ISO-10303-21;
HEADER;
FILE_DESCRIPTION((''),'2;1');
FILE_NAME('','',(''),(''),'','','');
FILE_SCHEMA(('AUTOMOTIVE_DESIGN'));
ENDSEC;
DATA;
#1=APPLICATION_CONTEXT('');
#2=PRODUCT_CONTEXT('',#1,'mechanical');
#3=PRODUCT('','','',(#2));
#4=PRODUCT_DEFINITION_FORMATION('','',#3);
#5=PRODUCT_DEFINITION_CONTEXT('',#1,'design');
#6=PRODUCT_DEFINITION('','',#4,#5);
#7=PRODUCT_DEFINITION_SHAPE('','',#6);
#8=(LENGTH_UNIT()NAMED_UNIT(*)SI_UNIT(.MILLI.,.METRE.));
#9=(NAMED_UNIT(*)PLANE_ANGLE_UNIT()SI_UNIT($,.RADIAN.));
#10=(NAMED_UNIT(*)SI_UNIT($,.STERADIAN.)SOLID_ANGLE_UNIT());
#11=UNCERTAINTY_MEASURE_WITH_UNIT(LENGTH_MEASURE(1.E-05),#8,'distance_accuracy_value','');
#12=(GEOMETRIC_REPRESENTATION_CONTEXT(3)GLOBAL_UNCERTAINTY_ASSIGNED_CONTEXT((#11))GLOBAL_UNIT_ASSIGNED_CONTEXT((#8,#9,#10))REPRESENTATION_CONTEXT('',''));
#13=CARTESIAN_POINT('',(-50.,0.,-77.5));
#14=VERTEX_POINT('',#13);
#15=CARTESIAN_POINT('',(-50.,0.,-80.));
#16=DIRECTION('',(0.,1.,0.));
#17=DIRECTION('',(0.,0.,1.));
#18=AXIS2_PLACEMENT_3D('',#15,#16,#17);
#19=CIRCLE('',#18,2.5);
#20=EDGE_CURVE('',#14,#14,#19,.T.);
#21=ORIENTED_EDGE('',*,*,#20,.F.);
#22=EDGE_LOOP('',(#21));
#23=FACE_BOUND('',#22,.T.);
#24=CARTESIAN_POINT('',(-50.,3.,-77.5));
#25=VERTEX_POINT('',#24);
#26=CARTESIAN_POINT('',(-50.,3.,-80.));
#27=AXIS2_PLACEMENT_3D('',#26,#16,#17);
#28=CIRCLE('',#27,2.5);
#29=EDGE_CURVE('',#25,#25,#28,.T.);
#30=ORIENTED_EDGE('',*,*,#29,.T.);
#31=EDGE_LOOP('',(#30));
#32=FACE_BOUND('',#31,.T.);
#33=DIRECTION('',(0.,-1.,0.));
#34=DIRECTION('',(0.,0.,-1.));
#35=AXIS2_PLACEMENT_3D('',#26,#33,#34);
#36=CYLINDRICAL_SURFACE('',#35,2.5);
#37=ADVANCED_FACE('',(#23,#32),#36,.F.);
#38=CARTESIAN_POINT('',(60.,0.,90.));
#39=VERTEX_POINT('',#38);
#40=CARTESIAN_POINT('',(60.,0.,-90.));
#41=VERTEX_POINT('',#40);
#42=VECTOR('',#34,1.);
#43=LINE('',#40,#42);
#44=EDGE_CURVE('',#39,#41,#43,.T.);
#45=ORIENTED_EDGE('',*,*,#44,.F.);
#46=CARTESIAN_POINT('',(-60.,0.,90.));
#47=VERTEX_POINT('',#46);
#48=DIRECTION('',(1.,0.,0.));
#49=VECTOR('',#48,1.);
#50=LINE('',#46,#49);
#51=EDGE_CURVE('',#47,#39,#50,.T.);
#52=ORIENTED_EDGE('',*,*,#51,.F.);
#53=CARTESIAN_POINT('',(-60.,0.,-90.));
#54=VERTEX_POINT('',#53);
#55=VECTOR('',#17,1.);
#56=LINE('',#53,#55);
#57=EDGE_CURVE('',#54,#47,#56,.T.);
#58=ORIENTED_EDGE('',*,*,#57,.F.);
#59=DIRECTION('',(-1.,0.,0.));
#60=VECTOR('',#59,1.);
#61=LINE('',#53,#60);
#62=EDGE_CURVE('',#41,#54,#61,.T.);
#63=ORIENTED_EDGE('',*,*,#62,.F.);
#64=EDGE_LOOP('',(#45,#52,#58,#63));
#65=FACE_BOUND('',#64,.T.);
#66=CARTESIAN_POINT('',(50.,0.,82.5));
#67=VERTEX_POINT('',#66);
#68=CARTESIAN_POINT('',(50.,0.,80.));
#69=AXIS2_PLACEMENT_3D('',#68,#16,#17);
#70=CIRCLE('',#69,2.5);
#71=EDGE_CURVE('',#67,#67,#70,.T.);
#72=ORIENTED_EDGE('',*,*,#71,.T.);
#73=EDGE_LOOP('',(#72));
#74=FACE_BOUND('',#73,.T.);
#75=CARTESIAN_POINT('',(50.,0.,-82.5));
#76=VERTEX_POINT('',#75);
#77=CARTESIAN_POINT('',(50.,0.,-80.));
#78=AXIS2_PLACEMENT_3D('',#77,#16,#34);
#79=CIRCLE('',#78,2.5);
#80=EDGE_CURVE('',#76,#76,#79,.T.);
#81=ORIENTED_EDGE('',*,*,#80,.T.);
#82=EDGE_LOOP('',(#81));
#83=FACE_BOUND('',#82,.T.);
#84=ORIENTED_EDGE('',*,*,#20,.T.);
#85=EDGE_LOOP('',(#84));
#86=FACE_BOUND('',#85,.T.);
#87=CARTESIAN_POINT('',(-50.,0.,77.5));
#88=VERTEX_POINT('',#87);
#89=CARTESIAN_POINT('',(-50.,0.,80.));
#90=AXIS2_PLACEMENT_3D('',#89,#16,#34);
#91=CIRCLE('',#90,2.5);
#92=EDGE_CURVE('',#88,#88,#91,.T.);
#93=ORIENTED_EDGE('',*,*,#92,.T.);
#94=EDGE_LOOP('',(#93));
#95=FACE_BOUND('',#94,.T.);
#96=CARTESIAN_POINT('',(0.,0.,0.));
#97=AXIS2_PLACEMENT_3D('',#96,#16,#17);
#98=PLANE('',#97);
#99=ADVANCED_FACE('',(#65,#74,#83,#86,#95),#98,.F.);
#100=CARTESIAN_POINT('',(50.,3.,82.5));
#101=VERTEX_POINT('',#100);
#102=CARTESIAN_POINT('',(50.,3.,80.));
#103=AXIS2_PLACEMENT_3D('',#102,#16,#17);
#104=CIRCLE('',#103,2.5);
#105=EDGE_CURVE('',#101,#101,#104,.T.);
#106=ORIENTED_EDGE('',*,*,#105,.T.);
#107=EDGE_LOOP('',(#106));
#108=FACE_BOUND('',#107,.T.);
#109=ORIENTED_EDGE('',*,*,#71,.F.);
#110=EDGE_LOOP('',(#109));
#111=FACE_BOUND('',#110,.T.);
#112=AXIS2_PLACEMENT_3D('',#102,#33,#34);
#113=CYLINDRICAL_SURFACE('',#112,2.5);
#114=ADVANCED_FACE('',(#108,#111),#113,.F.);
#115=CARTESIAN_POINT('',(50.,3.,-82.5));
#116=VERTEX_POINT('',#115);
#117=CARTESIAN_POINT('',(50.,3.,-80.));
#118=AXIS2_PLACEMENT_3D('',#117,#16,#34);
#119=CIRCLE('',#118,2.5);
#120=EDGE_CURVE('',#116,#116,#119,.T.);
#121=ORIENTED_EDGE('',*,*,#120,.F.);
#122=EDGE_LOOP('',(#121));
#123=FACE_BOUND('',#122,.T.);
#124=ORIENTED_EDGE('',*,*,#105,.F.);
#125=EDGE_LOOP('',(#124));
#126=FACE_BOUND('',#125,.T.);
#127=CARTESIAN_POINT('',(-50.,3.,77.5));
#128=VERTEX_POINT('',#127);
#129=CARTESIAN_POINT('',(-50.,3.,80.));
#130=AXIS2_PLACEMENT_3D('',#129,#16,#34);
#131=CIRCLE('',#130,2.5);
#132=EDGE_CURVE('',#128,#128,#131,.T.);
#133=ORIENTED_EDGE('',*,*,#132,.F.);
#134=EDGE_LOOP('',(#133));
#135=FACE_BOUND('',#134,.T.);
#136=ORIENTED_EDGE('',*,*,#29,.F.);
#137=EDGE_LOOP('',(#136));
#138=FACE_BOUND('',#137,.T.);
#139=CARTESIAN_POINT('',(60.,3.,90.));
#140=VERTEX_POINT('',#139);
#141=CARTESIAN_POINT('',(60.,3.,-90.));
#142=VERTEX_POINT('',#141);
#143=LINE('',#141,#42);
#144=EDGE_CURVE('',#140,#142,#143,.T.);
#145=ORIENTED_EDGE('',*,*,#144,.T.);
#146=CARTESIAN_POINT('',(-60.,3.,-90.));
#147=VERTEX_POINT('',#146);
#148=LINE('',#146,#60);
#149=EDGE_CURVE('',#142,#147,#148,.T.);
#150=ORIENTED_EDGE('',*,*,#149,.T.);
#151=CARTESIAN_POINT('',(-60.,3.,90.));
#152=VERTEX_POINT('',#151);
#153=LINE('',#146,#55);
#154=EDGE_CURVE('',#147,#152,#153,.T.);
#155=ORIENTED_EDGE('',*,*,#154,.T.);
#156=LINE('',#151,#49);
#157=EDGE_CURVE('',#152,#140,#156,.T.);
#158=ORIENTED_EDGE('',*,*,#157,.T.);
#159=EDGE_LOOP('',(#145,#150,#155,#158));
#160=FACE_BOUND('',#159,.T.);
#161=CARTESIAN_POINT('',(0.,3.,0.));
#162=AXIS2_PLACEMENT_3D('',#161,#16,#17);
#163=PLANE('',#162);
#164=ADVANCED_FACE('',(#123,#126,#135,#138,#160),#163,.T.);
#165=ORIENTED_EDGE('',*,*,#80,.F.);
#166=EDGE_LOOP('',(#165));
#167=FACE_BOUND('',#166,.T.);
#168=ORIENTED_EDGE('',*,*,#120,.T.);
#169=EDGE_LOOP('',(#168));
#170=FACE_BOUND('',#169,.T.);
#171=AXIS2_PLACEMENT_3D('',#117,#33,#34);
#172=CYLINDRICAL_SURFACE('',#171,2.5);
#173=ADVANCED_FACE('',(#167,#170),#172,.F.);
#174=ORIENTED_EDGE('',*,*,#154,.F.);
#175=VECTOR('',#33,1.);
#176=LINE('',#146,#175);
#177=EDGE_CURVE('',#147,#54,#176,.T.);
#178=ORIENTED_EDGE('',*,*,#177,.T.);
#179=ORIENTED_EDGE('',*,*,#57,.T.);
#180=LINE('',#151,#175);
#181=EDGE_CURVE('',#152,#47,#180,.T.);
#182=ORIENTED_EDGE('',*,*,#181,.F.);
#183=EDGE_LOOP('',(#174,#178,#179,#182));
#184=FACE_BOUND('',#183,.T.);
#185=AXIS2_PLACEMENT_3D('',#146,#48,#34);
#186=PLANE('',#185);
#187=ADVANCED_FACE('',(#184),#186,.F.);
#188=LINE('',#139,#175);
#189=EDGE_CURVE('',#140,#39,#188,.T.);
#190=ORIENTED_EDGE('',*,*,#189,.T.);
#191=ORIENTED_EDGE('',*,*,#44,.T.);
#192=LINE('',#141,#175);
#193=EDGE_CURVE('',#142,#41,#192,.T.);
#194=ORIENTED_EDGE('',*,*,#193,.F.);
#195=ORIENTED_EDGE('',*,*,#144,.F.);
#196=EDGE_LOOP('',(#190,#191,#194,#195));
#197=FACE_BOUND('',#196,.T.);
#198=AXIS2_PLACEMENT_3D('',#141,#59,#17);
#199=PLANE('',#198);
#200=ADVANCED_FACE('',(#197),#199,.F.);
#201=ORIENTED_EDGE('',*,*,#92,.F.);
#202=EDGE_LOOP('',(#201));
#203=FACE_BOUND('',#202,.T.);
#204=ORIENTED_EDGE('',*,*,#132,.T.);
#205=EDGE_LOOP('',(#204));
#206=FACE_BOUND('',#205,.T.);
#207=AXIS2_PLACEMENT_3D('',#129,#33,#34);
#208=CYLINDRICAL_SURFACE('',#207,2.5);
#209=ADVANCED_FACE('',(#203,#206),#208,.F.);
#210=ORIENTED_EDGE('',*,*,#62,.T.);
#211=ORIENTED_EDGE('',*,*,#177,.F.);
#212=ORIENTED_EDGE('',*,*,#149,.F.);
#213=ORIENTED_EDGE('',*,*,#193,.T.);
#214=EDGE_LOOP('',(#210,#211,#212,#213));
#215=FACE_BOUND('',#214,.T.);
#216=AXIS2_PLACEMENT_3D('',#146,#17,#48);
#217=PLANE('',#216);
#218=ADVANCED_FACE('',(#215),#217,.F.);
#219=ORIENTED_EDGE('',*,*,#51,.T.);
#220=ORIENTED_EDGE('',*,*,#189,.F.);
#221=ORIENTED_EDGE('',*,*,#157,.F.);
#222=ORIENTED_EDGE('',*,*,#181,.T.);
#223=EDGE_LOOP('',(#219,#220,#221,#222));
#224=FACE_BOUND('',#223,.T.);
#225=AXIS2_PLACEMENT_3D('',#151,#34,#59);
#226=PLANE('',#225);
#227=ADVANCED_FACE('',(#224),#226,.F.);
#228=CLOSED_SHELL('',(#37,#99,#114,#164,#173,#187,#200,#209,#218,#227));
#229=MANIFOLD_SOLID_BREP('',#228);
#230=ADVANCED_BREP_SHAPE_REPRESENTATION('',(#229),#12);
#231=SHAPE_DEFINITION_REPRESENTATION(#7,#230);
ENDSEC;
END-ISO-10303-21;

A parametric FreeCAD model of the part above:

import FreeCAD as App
import Part
import Sketcher
Q = App.Units.Quantity

doc = App.newDocument("Part")
body = doc.addObject("PartDesign::Body", "Body")

# Sketch on XZ plane
sketch1 = body.newObject("Sketcher::SketchObject", "Sketch")
sketch1.AttachmentSupport = (doc.getObject("XZ_Plane"), [""])
sketch1.MapMode = "FlatFace"
sketch1.addGeometry([
    Part.LineSegment(App.Vector(-60, -90, 0), App.Vector(-60, 90, 0)),  # 0
    Part.LineSegment(App.Vector(-60, 90, 0), App.Vector(60, 90, 0)),  # 1
    Part.LineSegment(App.Vector(60, 90, 0), App.Vector(60, -90, 0)),  # 2
    Part.LineSegment(App.Vector(60, -90, 0), App.Vector(-60, -90, 0)),  # 3
    Part.Circle(App.Vector(-50, 80, 0), App.Vector(0, 0, 1), 2.5),  # 4
    Part.Circle(App.Vector(50, 80, 0), App.Vector(0, 0, 1), 2.5),  # 5
    Part.Circle(App.Vector(-50, -80, 0), App.Vector(0, 0, 1), 2.5),  # 6
    Part.Circle(App.Vector(50, -80, 0), App.Vector(0, 0, 1), 2.5),  # 7
], False)
sketch1.addConstraint([
    Sketcher.Constraint("Coincident", 0, 2, 1, 1),
    Sketcher.Constraint("Coincident", 1, 2, 2, 1),
    Sketcher.Constraint("Coincident", 2, 2, 3, 1),
    Sketcher.Constraint("Coincident", 3, 2, 0, 1),
    Sketcher.Constraint("Vertical", 0),
    Sketcher.Constraint("Horizontal", 1),
    Sketcher.Constraint("Vertical", 2),
    Sketcher.Constraint("Horizontal", 3),
    Sketcher.Constraint("Equal", 4, 5),
    Sketcher.Constraint("Equal", 5, 6),
    Sketcher.Constraint("Equal", 6, 7),
    Sketcher.Constraint("Symmetric", 5, 3, 6, 3, -1, 1),
    Sketcher.Constraint("Symmetric", 4, 3, 7, 3, -1, 1),
    Sketcher.Constraint("Symmetric", 0, 2, 2, 2, -1, 1),
    Sketcher.Constraint("Symmetric", 4, 3, 5, 3, -2),
    Sketcher.Constraint("Diameter", 4, Q("5 mm")),
    Sketcher.Constraint("DistanceX", 1, 1, 1, 2, Q("120 mm")),
    Sketcher.Constraint("DistanceY", 0, 1, 0, 2, Q("180 mm")),
    Sketcher.Constraint("DistanceX", 4, 3, -1, 1, Q("50 mm")),
    Sketcher.Constraint("DistanceY", -1, 1, 4, 3, Q("80 mm")),
])
pad1 = body.newObject("PartDesign::Pad", "Pad")
pad1.Profile = sketch1
pad1.Length = 3
pad1.Reversed = True

doc.recompute()
